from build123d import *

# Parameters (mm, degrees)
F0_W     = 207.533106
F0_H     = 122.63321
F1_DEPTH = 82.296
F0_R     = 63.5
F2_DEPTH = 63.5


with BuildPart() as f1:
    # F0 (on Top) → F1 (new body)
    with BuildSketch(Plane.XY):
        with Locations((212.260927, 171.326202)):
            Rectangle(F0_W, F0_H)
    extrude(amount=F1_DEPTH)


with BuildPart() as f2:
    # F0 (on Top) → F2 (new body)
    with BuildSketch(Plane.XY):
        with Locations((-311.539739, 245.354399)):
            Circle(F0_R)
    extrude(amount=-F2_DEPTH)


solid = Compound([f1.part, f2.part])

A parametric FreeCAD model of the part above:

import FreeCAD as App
import Part
import Sketcher
Q = App.Units.Quantity

doc = App.newDocument("Part")
params = doc.addObject("Spreadsheet::Sheet", "Params")
for row, (alias, value) in enumerate([
    ("pad1_length", "3.24 in"),
    ("sketch2_diameter", "5 in"),
    ("pad2_length", "2.5 in"),
], start=1):
    params.set(f"A{row}", alias)
    params.set(f"B{row}", "=" + value)
    params.setAlias(f"B{row}", alias)

body = doc.addObject("PartDesign::Body", "Body")

# Sketch on XY plane
sketch1 = body.newObject("Sketcher::SketchObject", "Sketch")
sketch1.AttachmentSupport = (doc.getObject("XY_Plane"), [""])
sketch1.MapMode = "FlatFace"
sketch1.addGeometry([
    Part.LineSegment(App.Vector(108, 233, 0), App.Vector(108, 110, 0)),
    Part.LineSegment(App.Vector(108, 110, 0), App.Vector(316, 110, 0)),
    Part.LineSegment(App.Vector(316, 110, 0), App.Vector(316, 233, 0)),
    Part.LineSegment(App.Vector(316, 233, 0), App.Vector(108, 233, 0)),
], False)
sketch1.addConstraint([
    Sketcher.Constraint("Coincident", 0, 2, 1, 1),
    Sketcher.Constraint("Coincident", 1, 2, 2, 1),
    Sketcher.Constraint("Coincident", 2, 2, 3, 1),
    Sketcher.Constraint("Coincident", 3, 2, 0, 1),
    Sketcher.Constraint("Vertical", 0),
    Sketcher.Constraint("Horizontal", 1),
    Sketcher.Constraint("Vertical", 2),
    Sketcher.Constraint("Horizontal", 3),
    Sketcher.Constraint("DistanceY", 0, 2, 0, 1, 122.63321),
    Sketcher.Constraint("DistanceX", 1, 1, 1, 2, 207.533106),
    Sketcher.Constraint("DistanceX", -1, 1, 1, 2, 316.02748),
    Sketcher.Constraint("DistanceY", -1, 1, 0, 2, 110.009597),
])
pad1 = body.newObject("PartDesign::Pad", "Pad")
pad1.Profile = sketch1
pad1.setExpression("Length", "Params.pad1_length")
body2 = doc.addObject("PartDesign::Body", "Body001")

# Sketch on XY plane
sketch2 = body2.newObject("Sketcher::SketchObject", "Sketch001")
sketch2.AttachmentSupport = (doc.getObject("XY_Plane001"), [""])
sketch2.MapMode = "FlatFace"
sketch2.addGeometry(Part.Circle(App.Vector(-312, 245, 0), App.Vector(0, 0, 1), 64), False)
sketch2.addConstraint([
    Sketcher.Constraint("Diameter", 0, Q("5 in")),
    Sketcher.Constraint("DistanceY", -1, 1, 0, 3, 245.354399),
    Sketcher.Constraint("DistanceX", 0, 3, -1, 1, 311.539739),
])
sketch2.setExpression("Constraints[0]", "Params.sketch2_diameter")
pad2 = body2.newObject("PartDesign::Pad", "Pad001")
pad2.Profile = sketch2
pad2.setExpression("Length", "Params.pad2_length")
pad2.Reversed = True

doc.recompute()
